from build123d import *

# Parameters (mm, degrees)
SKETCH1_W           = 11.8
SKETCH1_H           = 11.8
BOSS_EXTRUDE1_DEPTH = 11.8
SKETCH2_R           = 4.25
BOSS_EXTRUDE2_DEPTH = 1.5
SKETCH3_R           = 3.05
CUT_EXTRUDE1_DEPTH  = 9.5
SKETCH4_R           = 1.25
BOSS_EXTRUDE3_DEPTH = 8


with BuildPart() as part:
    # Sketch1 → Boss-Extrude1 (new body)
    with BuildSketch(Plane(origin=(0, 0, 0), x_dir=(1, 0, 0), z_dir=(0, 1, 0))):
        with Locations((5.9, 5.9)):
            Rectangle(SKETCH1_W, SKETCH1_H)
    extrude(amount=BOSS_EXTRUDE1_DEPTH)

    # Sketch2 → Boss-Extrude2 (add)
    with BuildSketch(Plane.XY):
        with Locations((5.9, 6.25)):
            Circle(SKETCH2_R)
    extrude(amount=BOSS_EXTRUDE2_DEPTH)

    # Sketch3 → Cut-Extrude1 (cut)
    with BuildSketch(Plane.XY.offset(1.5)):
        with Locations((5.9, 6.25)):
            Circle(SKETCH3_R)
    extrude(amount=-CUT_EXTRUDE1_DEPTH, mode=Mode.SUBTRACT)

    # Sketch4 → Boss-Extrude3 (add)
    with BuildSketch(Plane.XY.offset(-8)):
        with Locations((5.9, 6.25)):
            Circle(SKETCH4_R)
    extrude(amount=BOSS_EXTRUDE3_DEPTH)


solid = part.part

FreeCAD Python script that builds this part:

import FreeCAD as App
import Part
import Sketcher

V = App.Vector

doc = App.newDocument("Part")
body = doc.addObject("PartDesign::Body", "Body")

# Sketch on XZ plane
sketch1 = body.newObject("Sketcher::SketchObject", "Sketch")
sketch1.AttachmentSupport = (doc.getObject("XZ_Plane"), [""])
sketch1.MapMode = "FlatFace"
sketch1.addGeometry(Part.LineSegment(V(0, -11.8, 0), V(0, 0, 0)), False)
sketch1.addGeometry(Part.LineSegment(V(0, 0, 0), V(11.8, 0, 0)), False)
sketch1.addGeometry(Part.LineSegment(V(11.8, 0, 0), V(11.8, -11.8, 0)), False)
sketch1.addGeometry(Part.LineSegment(V(11.8, -11.8, 0), V(0, -11.8, 0)), False)
sketch1.addConstraint(Sketcher.Constraint("Coincident", 0, 2, 1, 1))
sketch1.addConstraint(Sketcher.Constraint("Coincident", 1, 2, 2, 1))
sketch1.addConstraint(Sketcher.Constraint("Coincident", 2, 2, 3, 1))
sketch1.addConstraint(Sketcher.Constraint("Coincident", 3, 2, 0, 1))
sketch1.addConstraint(Sketcher.Constraint("Vertical", 0))
sketch1.addConstraint(Sketcher.Constraint("Horizontal", 1))
sketch1.addConstraint(Sketcher.Constraint("Vertical", 2))
sketch1.addConstraint(Sketcher.Constraint("Horizontal", 3))
sketch1.addConstraint(Sketcher.Constraint("Coincident", 0, 2, -1, 1))
sketch1.addConstraint(Sketcher.Constraint("Equal", 3, 0))
sketch1.addConstraint(Sketcher.Constraint("DistanceX", 1, 1, 1, 2, 11.8))
pad1 = body.newObject("PartDesign::Pad", "Pad")
pad1.Profile = sketch1
pad1.Length = 11.8
pad1.Reversed = True

# Sketch on XY plane
sketch2 = body.newObject("Sketcher::SketchObject", "Sketch001")
sketch2.AttachmentSupport = (doc.getObject("XY_Plane"), [""])
sketch2.MapMode = "FlatFace"
sketch2.addGeometry(Part.Circle(V(5.9, 6.25, 0), V(0, 0, 1), 4.25), False)
sketch2.addConstraint(Sketcher.Constraint("Diameter", 0, 8.5))
sketch2.addConstraint(Sketcher.Constraint("DistanceX", -1, 1, 0, 3, 5.9))
sketch2.addConstraint(Sketcher.Constraint("DistanceY", -1, 1, 0, 3, 6.25))
pad2 = body.newObject("PartDesign::Pad", "Pad001")
pad2.Profile = sketch2
pad2.Length = 1.5

# Sketch on XY plane
sketch3 = body.newObject("Sketcher::SketchObject", "Sketch002")
sketch3.AttachmentSupport = (doc.getObject("XY_Plane"), [""])
sketch3.MapMode = "FlatFace"
sketch3.AttachmentOffset = App.Placement(V(0, 0, 1.5), App.Rotation())
sketch3.addGeometry(Part.Circle(V(5.9, 6.25, 0), V(0, 0, 1), 3.05), False)
sketch3.addConstraint(Sketcher.Constraint("Diameter", 0, 6.1))
sketch3.addConstraint(Sketcher.Constraint("DistanceX", -1, 1, 0, 3, 5.9))
sketch3.addConstraint(Sketcher.Constraint("DistanceY", -1, 1, 0, 3, 6.25))
pocket1 = body.newObject("PartDesign::Pocket", "Pocket")
pocket1.Profile = sketch3
pocket1.Length = 9.5

# Sketch on XY plane
sketch4 = body.newObject("Sketcher::SketchObject", "Sketch003")
sketch4.AttachmentSupport = (doc.getObject("XY_Plane"), [""])
sketch4.MapMode = "FlatFace"
sketch4.AttachmentOffset = App.Placement(V(0, 0, -8), App.Rotation())
sketch4.addGeometry(Part.Circle(V(5.9, 6.25, 0), V(0, 0, 1), 1.25), False)
sketch4.addConstraint(Sketcher.Constraint("Diameter", 0, 2.5))
sketch4.addConstraint(Sketcher.Constraint("DistanceX", -1, 1, 0, 3, 5.9))
sketch4.addConstraint(Sketcher.Constraint("DistanceY", -1, 1, 0, 3, 6.25))
pad3 = body.newObject("PartDesign::Pad", "Pad002")
pad3.Profile = sketch4
pad3.Length = 8

doc.recompute()
